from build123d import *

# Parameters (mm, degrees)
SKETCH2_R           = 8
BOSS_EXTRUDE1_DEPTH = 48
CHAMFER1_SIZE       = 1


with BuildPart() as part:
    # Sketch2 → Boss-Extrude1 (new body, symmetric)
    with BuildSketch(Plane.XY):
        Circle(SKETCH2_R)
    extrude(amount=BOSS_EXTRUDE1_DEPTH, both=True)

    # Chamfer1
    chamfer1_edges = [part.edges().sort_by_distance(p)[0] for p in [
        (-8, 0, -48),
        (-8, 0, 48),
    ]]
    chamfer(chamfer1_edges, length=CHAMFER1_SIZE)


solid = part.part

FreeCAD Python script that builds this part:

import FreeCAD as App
import Part
import Sketcher
from FreeCAD import Vector


def edges_at(feature, points):
    """Names of the edges that pass closest to the given points."""
    edges = feature.Shape.Edges
    near = lambda p: min(range(len(edges)), key=lambda i: edges[i].distToShape(Part.Vertex(*p))[0])
    return sorted({f"Edge{near(p) + 1}" for p in points})

doc = App.newDocument("Part")
params = doc.addObject("Spreadsheet::Sheet", "Params")
for row, (alias, value) in enumerate([
    ("sketch1_diameter", "16 mm"),
    ("pad1_length", "96 mm"),
    ("chamfer_size", "1 mm"),
], start=1):
    params.set(f"A{row}", alias)
    params.set(f"B{row}", "=" + value)
    params.setAlias(f"B{row}", alias)

body = doc.addObject("PartDesign::Body", "Body")

# Sketch on XY plane
sketch1 = body.newObject("Sketcher::SketchObject", "Sketch")
sketch1.AttachmentSupport = (doc.getObject("XY_Plane"), [""])
sketch1.MapMode = "FlatFace"
sketch1.addGeometry(Part.Circle(Vector(0, 0, 0), Vector(0, 0, 1), 8), False)
sketch1.addConstraint(Sketcher.Constraint("Coincident", 0, 3, -1, 1))
sketch1.addConstraint(Sketcher.Constraint("Diameter", 0, 16.0))
sketch1.setExpression("Constraints[1]", "Params.sketch1_diameter")
pad1 = body.newObject("PartDesign::Pad", "Pad")
pad1.Profile = sketch1
pad1.setExpression("Length", "Params.pad1_length")
pad1.Midplane = True
doc.recompute()

chamfer = body.newObject("PartDesign::Chamfer", "Chamfer")
chamfer.Base = (pad1, edges_at(pad1, [(-8, 0, -48), (-8, 0, 48)]))
chamfer.setExpression("Size", "Params.chamfer_size")

doc.recompute()
